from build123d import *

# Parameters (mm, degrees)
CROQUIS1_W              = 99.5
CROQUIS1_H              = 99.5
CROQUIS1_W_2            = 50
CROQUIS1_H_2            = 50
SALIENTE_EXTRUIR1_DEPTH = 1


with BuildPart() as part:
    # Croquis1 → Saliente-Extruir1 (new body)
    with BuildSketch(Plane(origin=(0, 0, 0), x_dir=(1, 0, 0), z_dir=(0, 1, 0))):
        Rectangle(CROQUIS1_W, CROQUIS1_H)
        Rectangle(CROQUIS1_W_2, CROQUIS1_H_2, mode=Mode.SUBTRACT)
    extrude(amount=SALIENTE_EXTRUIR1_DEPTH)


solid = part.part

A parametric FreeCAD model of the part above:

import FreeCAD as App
import Part
import Sketcher
from FreeCAD import Vector

doc = App.newDocument("Part")
body = doc.addObject("PartDesign::Body", "Body")

# Sketch on XZ plane
sketch1 = body.newObject("Sketcher::SketchObject", "Sketch")
sketch1.AttachmentSupport = (doc.getObject("XZ_Plane"), [""])
sketch1.MapMode = "FlatFace"
sketch1.addGeometry(Part.LineSegment(Vector(-49.75, -49.75, 0), Vector(-49.75, 49.75, 0)), False)
sketch1.addGeometry(Part.LineSegment(Vector(-49.75, 49.75, 0), Vector(49.75, 49.75, 0)), False)
sketch1.addGeometry(Part.LineSegment(Vector(49.75, 49.75, 0), Vector(49.75, -49.75, 0)), False)
sketch1.addGeometry(Part.LineSegment(Vector(49.75, -49.75, 0), Vector(-49.75, -49.75, 0)), False)
sketch1.addGeometry(Part.LineSegment(Vector(25, 25, 0), Vector(-25, 25, 0)), False)
sketch1.addGeometry(Part.LineSegment(Vector(-25, 25, 0), Vector(-25, -25, 0)), False)
sketch1.addGeometry(Part.LineSegment(Vector(-25, -25, 0), Vector(25, -25, 0)), False)
sketch1.addGeometry(Part.LineSegment(Vector(25, -25, 0), Vector(25, 25, 0)), False)
sketch1.addConstraint(Sketcher.Constraint("Coincident", 0, 2, 1, 1))
sketch1.addConstraint(Sketcher.Constraint("Coincident", 1, 2, 2, 1))
sketch1.addConstraint(Sketcher.Constraint("Coincident", 2, 2, 3, 1))
sketch1.addConstraint(Sketcher.Constraint("Coincident", 3, 2, 0, 1))
sketch1.addConstraint(Sketcher.Constraint("Coincident", 4, 2, 5, 1))
sketch1.addConstraint(Sketcher.Constraint("Coincident", 5, 2, 6, 1))
sketch1.addConstraint(Sketcher.Constraint("Coincident", 6, 2, 7, 1))
sketch1.addConstraint(Sketcher.Constraint("Coincident", 7, 2, 4, 1))
sketch1.addConstraint(Sketcher.Constraint("Vertical", 0))
sketch1.addConstraint(Sketcher.Constraint("Horizontal", 1))
sketch1.addConstraint(Sketcher.Constraint("Vertical", 2))
sketch1.addConstraint(Sketcher.Constraint("Horizontal", 3))
sketch1.addConstraint(Sketcher.Constraint("Horizontal", 4))
sketch1.addConstraint(Sketcher.Constraint("Vertical", 5))
sketch1.addConstraint(Sketcher.Constraint("Horizontal", 6))
sketch1.addConstraint(Sketcher.Constraint("Vertical", 7))
sketch1.addConstraint(Sketcher.Constraint("Symmetric", 0, 2, 2, 2, -1, 1))
sketch1.addConstraint(Sketcher.Constraint("Symmetric", 4, 2, 6, 2, -1, 1))
sketch1.addConstraint(Sketcher.Constraint("Equal", 3, 0))
sketch1.addConstraint(Sketcher.Constraint("Equal", 6, 5))
sketch1.addConstraint(Sketcher.Constraint("DistanceX", 4, 2, 4, 1, 50.0))
sketch1.addConstraint(Sketcher.Constraint("DistanceX", 1, 1, 1, 2, 99.5))
pad1 = body.newObject("PartDesign::Pad", "Pad")
pad1.Profile = sketch1
pad1.Length = 1
pad1.Reversed = True

doc.recompute()
